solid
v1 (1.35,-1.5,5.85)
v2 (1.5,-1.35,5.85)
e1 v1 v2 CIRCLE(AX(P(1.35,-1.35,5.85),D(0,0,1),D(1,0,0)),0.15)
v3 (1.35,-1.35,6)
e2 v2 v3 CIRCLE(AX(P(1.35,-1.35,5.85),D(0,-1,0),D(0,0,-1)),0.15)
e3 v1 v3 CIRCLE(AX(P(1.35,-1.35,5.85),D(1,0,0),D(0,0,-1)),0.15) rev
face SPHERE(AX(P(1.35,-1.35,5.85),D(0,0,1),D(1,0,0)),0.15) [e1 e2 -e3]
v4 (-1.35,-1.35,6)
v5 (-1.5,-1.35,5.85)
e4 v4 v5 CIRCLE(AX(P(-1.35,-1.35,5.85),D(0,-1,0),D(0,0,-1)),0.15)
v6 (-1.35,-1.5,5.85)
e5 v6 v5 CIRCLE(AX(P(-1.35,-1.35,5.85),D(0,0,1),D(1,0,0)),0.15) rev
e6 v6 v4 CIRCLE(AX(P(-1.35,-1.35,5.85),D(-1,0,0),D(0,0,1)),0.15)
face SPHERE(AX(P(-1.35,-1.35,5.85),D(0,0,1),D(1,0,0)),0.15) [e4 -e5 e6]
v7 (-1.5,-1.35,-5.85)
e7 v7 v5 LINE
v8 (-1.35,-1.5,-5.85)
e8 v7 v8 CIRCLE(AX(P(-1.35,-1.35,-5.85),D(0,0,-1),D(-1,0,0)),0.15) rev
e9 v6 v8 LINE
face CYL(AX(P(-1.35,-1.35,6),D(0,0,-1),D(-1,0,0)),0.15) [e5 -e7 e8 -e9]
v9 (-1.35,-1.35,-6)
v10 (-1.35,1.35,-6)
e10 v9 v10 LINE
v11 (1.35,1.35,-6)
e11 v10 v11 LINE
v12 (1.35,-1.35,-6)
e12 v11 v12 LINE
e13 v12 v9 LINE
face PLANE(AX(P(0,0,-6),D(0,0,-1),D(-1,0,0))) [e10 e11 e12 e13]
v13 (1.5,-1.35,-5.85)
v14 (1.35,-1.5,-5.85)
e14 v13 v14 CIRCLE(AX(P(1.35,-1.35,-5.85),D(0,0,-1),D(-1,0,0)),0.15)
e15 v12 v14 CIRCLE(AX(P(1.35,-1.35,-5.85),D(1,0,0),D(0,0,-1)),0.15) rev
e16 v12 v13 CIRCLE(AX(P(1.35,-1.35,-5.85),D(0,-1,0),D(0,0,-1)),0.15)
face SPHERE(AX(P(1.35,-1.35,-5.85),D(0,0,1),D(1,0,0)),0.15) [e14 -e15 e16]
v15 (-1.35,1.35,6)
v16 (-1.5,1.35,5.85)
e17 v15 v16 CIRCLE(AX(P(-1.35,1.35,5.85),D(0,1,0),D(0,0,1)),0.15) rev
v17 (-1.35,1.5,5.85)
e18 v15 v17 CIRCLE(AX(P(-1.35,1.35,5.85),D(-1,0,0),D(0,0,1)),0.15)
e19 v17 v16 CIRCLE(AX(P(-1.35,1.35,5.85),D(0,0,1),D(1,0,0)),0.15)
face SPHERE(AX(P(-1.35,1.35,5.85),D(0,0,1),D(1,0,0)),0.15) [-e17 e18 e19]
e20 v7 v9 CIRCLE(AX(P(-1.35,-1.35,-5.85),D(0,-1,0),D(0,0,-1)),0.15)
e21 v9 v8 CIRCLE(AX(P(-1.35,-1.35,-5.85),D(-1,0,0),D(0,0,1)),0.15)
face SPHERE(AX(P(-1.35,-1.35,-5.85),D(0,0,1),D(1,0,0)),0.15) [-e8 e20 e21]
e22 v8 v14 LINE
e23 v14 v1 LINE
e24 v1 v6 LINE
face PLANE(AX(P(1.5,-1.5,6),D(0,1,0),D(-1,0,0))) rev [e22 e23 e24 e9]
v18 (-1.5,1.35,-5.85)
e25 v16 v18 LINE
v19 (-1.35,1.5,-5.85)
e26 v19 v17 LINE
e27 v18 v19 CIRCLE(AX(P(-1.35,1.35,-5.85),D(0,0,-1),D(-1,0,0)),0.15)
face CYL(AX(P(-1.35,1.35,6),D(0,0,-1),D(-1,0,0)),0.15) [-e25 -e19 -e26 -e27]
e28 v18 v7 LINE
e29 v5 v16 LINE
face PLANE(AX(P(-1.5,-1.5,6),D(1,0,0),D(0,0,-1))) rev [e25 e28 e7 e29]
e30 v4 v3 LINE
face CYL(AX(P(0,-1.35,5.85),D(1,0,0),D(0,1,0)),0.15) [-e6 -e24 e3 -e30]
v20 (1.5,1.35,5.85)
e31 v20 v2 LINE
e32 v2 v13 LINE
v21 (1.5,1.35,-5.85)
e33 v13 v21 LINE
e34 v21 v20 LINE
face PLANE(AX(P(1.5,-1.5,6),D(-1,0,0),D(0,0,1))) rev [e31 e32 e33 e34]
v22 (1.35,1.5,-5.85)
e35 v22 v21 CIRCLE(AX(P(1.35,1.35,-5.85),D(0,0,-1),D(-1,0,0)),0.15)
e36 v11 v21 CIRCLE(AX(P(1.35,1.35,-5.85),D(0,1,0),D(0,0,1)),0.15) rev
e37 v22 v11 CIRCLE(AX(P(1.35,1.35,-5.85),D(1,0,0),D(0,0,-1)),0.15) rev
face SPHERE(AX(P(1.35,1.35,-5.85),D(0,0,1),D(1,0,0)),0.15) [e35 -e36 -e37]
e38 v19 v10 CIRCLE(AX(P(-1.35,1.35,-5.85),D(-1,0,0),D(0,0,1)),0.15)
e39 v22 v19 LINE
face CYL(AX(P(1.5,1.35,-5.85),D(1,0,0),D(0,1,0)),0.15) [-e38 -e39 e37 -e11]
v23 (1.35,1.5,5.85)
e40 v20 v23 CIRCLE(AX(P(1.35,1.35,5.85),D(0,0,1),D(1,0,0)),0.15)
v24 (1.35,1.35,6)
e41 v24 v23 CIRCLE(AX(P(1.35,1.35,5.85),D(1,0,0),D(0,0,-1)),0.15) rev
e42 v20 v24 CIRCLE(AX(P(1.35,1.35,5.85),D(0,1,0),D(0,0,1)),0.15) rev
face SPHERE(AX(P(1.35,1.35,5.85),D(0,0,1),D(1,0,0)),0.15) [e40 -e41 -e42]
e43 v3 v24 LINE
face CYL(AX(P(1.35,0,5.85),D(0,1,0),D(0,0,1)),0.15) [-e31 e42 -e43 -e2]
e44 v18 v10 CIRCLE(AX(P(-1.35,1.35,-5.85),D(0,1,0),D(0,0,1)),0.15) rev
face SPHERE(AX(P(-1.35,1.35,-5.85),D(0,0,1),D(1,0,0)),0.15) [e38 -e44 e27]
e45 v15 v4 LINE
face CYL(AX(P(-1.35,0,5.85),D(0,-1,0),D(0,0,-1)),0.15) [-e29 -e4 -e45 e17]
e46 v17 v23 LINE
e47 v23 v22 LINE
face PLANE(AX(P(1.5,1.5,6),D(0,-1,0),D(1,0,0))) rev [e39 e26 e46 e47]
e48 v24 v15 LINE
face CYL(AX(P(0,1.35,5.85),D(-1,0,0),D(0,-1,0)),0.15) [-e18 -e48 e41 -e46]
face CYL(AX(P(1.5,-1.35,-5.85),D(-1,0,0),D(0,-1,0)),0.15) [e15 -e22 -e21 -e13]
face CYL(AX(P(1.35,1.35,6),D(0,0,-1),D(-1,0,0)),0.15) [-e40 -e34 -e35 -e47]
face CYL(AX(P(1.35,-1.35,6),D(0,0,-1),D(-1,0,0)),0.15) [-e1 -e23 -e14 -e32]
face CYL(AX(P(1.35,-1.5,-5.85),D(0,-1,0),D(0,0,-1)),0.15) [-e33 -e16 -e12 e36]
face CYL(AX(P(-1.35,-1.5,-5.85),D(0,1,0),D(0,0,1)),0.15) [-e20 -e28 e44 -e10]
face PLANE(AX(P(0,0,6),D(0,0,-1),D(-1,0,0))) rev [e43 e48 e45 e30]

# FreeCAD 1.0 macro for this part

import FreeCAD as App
import Part
import Sketcher
from FreeCAD import Vector
Q = App.Units.Quantity


def add_polygon(sketch, points):
    """Adds a closed chain of lines whose ends are joined by coincident constraints."""
    first, n = sketch.GeometryCount, len(points)
    for a, b in zip(points, points[1:] + points[:1]):
        sketch.addGeometry(Part.LineSegment(App.Vector(*a, 0), App.Vector(*b, 0)), False)
    for i in range(n):
        sketch.addConstraint(Sketcher.Constraint("Coincident", first + i, 2, first + (i + 1) % n, 1))

doc = App.newDocument("Part")
params = doc.addObject("Spreadsheet::Sheet", "Params")
for row, (alias, value) in enumerate([
    ("sketch1_width", "3 mm"),
    ("pad1_length", "6 mm"),
    ("pad1_length2", "6 mm"),
    ("fillet_radius", "0.15 mm"),
], start=1):
    params.set(f"A{row}", alias)
    params.set(f"B{row}", "=" + value)
    params.setAlias(f"B{row}", alias)

body = doc.addObject("PartDesign::Body", "Body")

# Sketch on XY plane
sketch1 = doc.addObject("Sketcher::SketchObject", "Sketch")
body.addObject(sketch1)
sketch1.AttachmentSupport = (doc.XY_Plane, [""])
sketch1.MapMode = "FlatFace"
add_polygon(sketch1, [(-1.5, 1.5), (-1.5, -1.5), (1.5, -1.5), (1.5, 1.5)])  # lines 0-3
sketch1.addConstraint(Sketcher.Constraint("Vertical", 0))
sketch1.addConstraint(Sketcher.Constraint("Horizontal", 1))
sketch1.addConstraint(Sketcher.Constraint("Vertical", 2))
sketch1.addConstraint(Sketcher.Constraint("Horizontal", 3))
sketch1.addConstraint(Sketcher.Constraint("Symmetric", 0, 2, 2, 2, -1, 1))
sketch1.addConstraint(Sketcher.Constraint("Equal", 3, 0))
sketch1.addConstraint(Sketcher.Constraint("DistanceX", 1, 1, 1, 2, Q("3 mm")))
sketch1.setExpression("Constraints[10]", "Params.sketch1_width")
pad1 = doc.addObject("PartDesign::Pad", "Pad")
body.addObject(pad1)
pad1.Profile = sketch1
pad1.Type = "TwoLengths"
pad1.setExpression("Length", "Params.pad1_length")
pad1.setExpression("Length2", "Params.pad1_length2")
doc.recompute()

fillet = doc.addObject("PartDesign::Fillet", "Fillet")
body.addObject(fillet)
fillet.Base = (pad1, ["Edge1"])
fillet.UseAllEdges = True
fillet.setExpression("Radius", "Params.fillet_radius")

doc.recompute()
